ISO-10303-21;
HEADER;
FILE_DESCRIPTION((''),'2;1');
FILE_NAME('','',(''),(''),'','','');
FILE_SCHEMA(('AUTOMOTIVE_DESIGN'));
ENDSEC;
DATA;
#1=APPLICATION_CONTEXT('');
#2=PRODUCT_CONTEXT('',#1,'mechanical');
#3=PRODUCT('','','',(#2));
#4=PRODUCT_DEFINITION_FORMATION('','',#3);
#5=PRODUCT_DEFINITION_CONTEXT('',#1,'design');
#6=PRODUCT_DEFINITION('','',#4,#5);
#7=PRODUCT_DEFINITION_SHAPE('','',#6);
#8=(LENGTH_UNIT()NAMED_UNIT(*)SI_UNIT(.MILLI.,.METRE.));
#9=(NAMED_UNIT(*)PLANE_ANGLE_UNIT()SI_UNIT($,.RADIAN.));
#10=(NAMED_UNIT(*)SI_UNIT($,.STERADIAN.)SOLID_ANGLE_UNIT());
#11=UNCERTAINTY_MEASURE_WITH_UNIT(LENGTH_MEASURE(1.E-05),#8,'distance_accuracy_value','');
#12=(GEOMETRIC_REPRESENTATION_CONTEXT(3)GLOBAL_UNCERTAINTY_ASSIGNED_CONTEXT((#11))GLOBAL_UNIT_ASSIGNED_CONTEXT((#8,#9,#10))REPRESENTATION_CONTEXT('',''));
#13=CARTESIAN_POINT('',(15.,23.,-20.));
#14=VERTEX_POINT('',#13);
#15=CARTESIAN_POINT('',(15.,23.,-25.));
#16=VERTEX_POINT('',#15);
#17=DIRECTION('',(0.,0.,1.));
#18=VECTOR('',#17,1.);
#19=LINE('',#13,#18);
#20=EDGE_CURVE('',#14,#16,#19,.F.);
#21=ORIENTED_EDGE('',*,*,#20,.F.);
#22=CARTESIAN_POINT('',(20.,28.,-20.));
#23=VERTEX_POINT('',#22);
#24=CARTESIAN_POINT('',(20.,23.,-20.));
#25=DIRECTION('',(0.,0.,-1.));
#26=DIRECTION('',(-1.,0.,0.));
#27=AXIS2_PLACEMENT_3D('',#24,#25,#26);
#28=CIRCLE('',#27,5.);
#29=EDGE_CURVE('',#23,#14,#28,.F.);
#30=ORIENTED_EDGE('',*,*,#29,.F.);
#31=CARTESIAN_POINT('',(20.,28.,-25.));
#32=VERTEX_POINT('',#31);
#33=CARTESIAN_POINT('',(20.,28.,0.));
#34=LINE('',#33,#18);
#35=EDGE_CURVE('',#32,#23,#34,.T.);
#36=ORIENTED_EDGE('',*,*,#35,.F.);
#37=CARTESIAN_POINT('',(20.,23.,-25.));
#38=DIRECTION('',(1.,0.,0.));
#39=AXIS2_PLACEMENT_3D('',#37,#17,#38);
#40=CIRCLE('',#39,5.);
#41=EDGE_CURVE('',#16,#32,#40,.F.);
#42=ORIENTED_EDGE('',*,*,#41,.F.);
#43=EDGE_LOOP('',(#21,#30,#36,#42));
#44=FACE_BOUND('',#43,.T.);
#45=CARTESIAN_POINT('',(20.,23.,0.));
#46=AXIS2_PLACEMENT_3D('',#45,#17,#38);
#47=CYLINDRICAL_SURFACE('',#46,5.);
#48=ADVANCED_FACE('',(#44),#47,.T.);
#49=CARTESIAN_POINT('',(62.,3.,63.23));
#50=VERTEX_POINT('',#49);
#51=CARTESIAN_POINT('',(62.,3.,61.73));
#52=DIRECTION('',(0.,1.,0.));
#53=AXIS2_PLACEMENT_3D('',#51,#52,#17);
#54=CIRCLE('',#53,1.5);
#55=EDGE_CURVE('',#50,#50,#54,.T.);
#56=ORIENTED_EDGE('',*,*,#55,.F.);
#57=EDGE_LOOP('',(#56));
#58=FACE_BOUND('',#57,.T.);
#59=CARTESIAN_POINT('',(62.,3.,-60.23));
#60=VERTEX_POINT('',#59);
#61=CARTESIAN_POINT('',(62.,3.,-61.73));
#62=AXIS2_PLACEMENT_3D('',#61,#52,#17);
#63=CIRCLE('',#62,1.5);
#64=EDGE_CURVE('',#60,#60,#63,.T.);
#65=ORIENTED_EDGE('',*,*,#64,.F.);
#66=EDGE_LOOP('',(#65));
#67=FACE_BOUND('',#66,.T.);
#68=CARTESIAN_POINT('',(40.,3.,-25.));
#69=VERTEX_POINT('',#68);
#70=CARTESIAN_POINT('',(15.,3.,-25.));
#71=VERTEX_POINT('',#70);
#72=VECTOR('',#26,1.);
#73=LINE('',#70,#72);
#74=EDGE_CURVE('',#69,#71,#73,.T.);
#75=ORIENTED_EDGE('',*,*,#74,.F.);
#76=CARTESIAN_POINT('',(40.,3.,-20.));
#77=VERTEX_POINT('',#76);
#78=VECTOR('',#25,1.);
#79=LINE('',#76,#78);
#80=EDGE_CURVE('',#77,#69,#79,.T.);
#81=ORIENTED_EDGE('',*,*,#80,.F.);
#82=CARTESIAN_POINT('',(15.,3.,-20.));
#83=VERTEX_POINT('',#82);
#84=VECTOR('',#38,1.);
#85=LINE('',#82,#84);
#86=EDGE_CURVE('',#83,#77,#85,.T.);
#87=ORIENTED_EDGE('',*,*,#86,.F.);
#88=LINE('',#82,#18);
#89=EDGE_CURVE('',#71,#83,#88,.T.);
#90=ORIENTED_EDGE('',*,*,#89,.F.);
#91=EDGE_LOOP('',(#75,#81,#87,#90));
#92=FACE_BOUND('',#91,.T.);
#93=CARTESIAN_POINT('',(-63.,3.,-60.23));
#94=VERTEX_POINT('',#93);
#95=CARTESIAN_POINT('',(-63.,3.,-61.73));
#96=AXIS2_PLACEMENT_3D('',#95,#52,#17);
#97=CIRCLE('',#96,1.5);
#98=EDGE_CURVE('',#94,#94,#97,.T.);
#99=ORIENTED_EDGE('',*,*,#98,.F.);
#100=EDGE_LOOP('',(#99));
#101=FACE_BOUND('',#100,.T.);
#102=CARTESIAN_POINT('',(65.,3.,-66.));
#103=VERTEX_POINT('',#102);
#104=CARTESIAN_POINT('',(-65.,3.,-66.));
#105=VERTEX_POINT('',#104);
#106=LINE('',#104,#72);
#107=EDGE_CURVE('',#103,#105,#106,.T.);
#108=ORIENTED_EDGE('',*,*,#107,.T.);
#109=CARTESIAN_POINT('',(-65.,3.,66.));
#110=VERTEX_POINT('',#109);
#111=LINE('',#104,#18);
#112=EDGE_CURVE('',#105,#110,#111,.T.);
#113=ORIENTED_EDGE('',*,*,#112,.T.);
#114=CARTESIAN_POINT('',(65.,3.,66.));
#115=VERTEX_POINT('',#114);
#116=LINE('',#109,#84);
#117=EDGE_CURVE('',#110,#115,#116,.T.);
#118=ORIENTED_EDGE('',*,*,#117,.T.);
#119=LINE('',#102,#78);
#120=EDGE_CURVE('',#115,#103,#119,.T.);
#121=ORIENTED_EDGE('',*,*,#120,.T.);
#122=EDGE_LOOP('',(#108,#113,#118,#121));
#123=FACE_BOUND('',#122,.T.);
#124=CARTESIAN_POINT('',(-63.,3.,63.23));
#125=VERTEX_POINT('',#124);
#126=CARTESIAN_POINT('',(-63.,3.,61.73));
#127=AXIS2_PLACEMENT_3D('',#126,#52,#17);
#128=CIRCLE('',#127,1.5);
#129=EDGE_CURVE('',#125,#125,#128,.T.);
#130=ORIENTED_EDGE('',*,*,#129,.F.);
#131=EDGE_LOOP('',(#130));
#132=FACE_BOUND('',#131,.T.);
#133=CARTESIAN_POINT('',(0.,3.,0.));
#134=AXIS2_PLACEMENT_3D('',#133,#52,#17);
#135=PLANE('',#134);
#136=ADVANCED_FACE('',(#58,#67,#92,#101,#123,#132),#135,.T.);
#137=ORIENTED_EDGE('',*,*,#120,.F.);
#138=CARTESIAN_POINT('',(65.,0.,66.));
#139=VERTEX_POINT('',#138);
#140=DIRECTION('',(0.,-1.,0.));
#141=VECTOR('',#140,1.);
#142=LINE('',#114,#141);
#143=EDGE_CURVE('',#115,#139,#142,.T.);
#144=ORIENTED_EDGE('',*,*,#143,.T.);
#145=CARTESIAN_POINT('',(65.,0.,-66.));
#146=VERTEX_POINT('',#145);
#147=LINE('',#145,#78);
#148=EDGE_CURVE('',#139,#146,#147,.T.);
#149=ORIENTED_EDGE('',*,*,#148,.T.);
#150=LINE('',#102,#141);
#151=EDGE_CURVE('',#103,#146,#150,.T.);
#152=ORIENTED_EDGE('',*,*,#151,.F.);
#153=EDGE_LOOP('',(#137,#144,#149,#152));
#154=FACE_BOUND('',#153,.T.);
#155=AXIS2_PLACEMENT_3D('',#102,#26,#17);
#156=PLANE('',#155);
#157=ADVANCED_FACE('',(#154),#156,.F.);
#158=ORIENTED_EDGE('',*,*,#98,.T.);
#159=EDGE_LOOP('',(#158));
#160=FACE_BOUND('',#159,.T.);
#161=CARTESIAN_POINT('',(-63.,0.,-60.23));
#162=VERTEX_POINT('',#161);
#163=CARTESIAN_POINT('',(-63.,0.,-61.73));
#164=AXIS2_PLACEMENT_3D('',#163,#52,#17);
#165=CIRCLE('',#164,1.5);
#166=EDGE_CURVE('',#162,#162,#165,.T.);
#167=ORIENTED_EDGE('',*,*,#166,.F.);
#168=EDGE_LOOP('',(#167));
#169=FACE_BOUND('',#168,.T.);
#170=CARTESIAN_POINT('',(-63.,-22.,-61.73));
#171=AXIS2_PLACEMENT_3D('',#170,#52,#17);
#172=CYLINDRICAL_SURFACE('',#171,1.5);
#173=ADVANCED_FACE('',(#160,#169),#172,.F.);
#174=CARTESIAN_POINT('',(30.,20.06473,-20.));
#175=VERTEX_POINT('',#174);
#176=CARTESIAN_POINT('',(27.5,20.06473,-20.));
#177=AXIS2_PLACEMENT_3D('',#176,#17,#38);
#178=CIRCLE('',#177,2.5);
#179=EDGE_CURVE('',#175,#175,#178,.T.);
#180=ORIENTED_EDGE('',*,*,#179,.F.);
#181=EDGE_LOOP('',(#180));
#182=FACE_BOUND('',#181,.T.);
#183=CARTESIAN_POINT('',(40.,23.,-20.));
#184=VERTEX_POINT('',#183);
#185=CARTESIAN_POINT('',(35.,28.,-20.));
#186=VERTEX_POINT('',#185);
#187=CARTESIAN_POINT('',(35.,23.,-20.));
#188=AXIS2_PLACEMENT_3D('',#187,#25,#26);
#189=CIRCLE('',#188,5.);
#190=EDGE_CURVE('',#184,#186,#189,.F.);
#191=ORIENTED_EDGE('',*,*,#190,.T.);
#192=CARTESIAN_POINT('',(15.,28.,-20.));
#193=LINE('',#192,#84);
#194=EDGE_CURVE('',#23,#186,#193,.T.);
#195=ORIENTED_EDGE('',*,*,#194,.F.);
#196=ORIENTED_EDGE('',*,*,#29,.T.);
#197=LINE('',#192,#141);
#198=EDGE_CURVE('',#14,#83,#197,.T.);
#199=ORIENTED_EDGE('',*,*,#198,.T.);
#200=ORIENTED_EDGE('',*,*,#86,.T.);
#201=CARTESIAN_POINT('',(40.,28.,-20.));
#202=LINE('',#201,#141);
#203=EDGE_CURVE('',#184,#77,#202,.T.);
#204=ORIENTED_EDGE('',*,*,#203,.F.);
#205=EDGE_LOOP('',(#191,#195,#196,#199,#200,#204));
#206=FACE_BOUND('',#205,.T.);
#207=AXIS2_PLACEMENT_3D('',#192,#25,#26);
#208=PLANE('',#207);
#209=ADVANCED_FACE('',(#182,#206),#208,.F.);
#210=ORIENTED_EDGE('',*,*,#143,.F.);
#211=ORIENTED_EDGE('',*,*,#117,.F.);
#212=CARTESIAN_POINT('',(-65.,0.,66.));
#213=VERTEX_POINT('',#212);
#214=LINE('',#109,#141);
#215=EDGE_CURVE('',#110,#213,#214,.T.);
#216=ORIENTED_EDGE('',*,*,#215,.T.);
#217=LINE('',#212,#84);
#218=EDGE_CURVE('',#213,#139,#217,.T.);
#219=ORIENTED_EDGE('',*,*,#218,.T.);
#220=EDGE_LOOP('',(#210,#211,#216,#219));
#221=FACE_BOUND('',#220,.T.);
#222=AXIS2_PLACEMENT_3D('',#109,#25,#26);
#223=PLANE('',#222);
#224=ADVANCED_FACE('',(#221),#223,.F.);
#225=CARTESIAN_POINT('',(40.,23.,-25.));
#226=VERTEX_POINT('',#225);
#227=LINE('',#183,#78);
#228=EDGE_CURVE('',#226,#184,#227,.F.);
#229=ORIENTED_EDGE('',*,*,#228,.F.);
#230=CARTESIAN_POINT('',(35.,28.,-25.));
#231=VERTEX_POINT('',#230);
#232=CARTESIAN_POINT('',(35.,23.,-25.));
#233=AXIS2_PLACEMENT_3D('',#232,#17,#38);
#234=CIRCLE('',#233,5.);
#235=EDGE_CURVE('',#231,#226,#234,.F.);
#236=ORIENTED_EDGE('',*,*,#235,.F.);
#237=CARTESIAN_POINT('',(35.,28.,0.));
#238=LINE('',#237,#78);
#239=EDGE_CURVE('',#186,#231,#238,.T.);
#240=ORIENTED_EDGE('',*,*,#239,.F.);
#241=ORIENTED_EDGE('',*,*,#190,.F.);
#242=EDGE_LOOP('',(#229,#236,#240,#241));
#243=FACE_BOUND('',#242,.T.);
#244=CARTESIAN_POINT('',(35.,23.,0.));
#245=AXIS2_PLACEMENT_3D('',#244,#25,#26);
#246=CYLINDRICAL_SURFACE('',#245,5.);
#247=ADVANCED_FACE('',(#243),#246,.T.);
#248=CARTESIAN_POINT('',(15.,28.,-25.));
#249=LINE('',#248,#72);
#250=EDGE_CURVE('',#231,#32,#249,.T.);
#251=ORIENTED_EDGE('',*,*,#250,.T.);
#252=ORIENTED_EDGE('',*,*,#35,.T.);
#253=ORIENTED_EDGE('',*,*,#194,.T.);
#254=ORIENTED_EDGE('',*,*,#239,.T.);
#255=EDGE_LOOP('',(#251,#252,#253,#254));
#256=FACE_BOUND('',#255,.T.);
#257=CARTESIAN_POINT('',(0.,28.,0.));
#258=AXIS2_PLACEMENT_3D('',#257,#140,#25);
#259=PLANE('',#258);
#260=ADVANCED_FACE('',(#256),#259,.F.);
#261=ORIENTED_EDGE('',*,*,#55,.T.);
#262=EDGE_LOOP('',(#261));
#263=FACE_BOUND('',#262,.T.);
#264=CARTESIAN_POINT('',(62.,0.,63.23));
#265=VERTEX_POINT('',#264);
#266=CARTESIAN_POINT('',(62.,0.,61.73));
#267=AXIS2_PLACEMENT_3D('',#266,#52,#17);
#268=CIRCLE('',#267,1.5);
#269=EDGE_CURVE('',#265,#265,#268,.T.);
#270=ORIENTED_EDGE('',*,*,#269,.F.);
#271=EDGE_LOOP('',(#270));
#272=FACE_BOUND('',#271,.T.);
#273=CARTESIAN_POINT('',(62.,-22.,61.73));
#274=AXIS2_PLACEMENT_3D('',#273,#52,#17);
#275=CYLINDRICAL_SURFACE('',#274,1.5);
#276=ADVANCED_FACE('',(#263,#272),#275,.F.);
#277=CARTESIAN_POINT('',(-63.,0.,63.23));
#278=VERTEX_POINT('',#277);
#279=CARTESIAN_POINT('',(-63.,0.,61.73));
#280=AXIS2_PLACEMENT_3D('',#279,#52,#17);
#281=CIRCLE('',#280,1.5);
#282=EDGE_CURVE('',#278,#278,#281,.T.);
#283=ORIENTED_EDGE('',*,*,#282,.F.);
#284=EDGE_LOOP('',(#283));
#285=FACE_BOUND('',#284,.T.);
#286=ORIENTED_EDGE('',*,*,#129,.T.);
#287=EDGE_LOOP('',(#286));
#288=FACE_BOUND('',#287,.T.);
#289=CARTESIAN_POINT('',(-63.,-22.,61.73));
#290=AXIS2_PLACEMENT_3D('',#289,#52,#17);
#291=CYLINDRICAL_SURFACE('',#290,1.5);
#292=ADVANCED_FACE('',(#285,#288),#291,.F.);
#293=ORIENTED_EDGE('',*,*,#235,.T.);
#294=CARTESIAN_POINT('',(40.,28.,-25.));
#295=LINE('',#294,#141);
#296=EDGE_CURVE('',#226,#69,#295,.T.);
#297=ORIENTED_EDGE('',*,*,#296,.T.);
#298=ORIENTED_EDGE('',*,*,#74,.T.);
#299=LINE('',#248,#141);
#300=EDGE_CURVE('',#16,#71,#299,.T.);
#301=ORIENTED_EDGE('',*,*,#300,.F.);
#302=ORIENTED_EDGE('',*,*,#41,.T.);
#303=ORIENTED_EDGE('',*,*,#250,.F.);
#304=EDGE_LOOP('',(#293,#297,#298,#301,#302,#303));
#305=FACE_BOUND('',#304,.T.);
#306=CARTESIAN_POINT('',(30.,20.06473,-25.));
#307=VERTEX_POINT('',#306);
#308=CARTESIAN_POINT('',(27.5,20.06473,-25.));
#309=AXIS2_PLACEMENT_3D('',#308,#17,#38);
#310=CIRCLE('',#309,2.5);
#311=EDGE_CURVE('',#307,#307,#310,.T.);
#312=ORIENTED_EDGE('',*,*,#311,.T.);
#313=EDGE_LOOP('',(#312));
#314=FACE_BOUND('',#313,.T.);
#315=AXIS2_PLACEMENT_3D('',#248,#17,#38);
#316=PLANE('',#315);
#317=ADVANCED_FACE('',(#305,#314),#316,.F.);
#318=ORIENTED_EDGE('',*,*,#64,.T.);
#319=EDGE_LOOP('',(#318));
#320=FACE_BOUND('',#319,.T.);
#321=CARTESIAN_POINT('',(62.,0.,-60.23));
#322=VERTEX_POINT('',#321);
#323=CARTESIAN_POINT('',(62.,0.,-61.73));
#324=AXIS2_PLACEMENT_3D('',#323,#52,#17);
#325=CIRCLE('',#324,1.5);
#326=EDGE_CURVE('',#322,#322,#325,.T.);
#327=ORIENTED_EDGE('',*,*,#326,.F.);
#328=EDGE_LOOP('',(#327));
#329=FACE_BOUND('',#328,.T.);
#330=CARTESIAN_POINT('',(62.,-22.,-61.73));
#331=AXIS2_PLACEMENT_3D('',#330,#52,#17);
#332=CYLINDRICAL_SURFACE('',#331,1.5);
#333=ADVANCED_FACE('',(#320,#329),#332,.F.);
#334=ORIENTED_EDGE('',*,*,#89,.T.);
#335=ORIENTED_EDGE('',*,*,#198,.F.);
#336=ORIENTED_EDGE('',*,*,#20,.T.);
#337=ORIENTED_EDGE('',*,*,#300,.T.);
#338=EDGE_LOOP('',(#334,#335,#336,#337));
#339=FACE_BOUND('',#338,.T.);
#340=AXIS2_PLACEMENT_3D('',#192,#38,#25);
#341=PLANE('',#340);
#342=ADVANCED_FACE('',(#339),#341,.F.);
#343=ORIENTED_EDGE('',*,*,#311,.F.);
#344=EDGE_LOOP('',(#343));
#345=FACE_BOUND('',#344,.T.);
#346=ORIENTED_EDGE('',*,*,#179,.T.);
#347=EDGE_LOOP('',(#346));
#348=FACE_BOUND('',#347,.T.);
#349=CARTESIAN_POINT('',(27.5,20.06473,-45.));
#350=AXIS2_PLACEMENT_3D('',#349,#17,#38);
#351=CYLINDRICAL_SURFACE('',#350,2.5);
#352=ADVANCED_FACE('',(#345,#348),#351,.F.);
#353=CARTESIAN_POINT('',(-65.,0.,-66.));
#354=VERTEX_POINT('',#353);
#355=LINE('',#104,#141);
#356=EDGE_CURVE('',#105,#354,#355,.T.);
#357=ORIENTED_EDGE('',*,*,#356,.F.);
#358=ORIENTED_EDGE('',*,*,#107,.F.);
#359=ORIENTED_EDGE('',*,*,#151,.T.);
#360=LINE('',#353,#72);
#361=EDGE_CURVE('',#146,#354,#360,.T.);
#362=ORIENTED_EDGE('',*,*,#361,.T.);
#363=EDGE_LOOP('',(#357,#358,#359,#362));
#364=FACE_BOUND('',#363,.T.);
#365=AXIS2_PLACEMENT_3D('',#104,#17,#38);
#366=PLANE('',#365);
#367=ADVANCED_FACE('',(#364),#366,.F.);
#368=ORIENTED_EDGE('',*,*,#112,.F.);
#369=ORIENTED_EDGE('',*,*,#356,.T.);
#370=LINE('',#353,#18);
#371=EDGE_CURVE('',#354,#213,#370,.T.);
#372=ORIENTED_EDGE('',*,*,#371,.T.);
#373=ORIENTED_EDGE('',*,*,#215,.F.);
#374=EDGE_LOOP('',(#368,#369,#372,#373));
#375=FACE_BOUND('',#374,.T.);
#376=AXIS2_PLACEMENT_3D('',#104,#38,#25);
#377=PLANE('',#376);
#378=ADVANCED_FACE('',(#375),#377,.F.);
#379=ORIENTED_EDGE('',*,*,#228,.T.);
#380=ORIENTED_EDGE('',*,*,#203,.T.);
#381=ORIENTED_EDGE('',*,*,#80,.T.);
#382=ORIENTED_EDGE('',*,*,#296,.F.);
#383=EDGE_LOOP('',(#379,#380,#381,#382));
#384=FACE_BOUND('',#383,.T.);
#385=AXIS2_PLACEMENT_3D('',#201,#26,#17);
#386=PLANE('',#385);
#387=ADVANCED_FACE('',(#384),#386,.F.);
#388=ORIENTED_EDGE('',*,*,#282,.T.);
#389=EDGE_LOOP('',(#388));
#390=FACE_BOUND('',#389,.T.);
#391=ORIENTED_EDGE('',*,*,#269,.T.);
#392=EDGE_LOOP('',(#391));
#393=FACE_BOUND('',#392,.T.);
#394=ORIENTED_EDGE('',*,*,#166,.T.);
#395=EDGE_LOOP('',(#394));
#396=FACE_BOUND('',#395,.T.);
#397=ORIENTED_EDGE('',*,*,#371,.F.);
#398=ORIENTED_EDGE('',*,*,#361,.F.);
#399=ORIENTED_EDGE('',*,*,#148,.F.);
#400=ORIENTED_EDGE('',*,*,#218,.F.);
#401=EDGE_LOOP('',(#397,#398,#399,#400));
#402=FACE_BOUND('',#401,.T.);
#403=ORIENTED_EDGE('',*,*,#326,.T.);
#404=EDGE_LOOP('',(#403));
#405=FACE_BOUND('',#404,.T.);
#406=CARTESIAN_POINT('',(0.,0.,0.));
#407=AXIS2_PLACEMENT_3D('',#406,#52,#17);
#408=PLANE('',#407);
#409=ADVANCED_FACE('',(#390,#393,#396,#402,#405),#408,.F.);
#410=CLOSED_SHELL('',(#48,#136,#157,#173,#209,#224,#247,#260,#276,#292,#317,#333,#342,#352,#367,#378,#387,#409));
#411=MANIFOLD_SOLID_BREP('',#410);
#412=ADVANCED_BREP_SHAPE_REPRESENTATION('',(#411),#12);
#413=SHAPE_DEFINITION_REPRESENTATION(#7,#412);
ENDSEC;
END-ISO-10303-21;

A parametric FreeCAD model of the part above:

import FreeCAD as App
import Part
import Sketcher
from FreeCAD import Vector
Q = App.Units.Quantity


def edges_at(feature, points):
    """Names of the edges that pass closest to the given points."""
    edges = feature.Shape.Edges
    near = lambda p: min(range(len(edges)), key=lambda i: edges[i].distToShape(Part.Vertex(*p))[0])
    return sorted({f"Edge{near(p) + 1}" for p in points})

doc = App.newDocument("Part")
body = doc.addObject("PartDesign::Body", "Body")

sketch1 = body.newObject("Sketcher::SketchObject", "Sketch")
sketch1.AttachmentSupport = (doc.getObject("XZ_Plane"), [""])
sketch1.MapMode = "FlatFace"
sketch1.addGeometry([
    Part.LineSegment(Vector(-65, -66, 0), Vector(-65, 66, 0)),
    Part.LineSegment(Vector(-65, 66, 0), Vector(65, 66, 0)),
    Part.LineSegment(Vector(65, 66, 0), Vector(65, -66, 0)),
    Part.LineSegment(Vector(65, -66, 0), Vector(-65, -66, 0)),
], False)
sketch1.addConstraint([
    Sketcher.Constraint("Coincident", 0, 2, 1, 1),
    Sketcher.Constraint("Coincident", 1, 2, 2, 1),
    Sketcher.Constraint("Coincident", 2, 2, 3, 1),
    Sketcher.Constraint("Coincident", 3, 2, 0, 1),
    Sketcher.Constraint("Vertical", 0),
    Sketcher.Constraint("Horizontal", 1),
    Sketcher.Constraint("Vertical", 2),
    Sketcher.Constraint("Horizontal", 3),
    Sketcher.Constraint("Symmetric", 0, 2, 2, 2, -1, 1),
    Sketcher.Constraint("DistanceX", 1, 1, 1, 2, Q("130 mm")),
    Sketcher.Constraint("DistanceY", 0, 1, 0, 2, Q("132 mm")),
])
pad1 = body.newObject("PartDesign::Pad", "Pad")
pad1.Profile = sketch1
pad1.Length = 3
pad1.Reversed = True

sketch2 = body.newObject("Sketcher::SketchObject", "Sketch001")
sketch2.AttachmentSupport = (doc.getObject("XZ_Plane"), [""])
sketch2.MapMode = "FlatFace"
sketch2.AttachmentOffset = App.Placement(Vector(0, 0, -3), App.Rotation())
sketch2.addGeometry([
    Part.LineSegment(Vector(15, -25, 0), Vector(15, -20, 0)),
    Part.LineSegment(Vector(15, -20, 0), Vector(40, -20, 0)),
    Part.LineSegment(Vector(40, -20, 0), Vector(40, -25, 0)),
    Part.LineSegment(Vector(40, -25, 0), Vector(15, -25, 0)),
], False)
sketch2.addConstraint([
    Sketcher.Constraint("Coincident", 0, 2, 1, 1),
    Sketcher.Constraint("Coincident", 1, 2, 2, 1),
    Sketcher.Constraint("Coincident", 2, 2, 3, 1),
    Sketcher.Constraint("Coincident", 3, 2, 0, 1),
    Sketcher.Constraint("Vertical", 0),
    Sketcher.Constraint("Horizontal", 1),
    Sketcher.Constraint("Vertical", 2),
    Sketcher.Constraint("Horizontal", 3),
    Sketcher.Constraint("DistanceX", 1, 1, 1, 2, Q("25 mm")),
    Sketcher.Constraint("DistanceY", 0, 1, 0, 2, Q("5 mm")),
    Sketcher.Constraint("DistanceX", -1, 1, 0, 2, Q("15 mm")),
    Sketcher.Constraint("DistanceY", 0, 2, -1, 1, Q("20 mm")),
])
pad2 = body.newObject("PartDesign::Pad", "Pad001")
pad2.Profile = sketch2
pad2.Length = 25
pad2.Reversed = True
doc.recompute()

fillet = body.newObject("PartDesign::Fillet", "Fillet")
fillet.Base = (pad2, edges_at(pad2, [(15, 28, -22.5), (40, 28, -22.5)]))
fillet.Radius = 5

sketch3 = body.newObject("Sketcher::SketchObject", "Sketch002")
sketch3.AttachmentSupport = (doc.getObject("XY_Plane"), [""])
sketch3.MapMode = "FlatFace"
sketch3.AttachmentOffset = App.Placement(Vector(0, 0, -20), App.Rotation())
sketch3.addGeometry(Part.Circle(Vector(27.5, 20.06473, 0), Vector(0, 0, 1), 2.5), False)
sketch3.addConstraint([
    Sketcher.Constraint("Diameter", 0, Q("5 mm")),
    Sketcher.Constraint("DistanceX", -1, 1, 0, 3, Q("27.5 mm")),
    Sketcher.Constraint("DistanceY", -1, 1, 0, 3, Q("20.06473 mm")),
])
pocket1 = body.newObject("PartDesign::Pocket", "Pocket")
pocket1.Profile = sketch3
pocket1.Length = 25

sketch4 = body.newObject("Sketcher::SketchObject", "Sketch003")
sketch4.AttachmentSupport = (doc.getObject("XZ_Plane"), [""])
sketch4.MapMode = "FlatFace"
sketch4.AttachmentOffset = App.Placement(Vector(0, 0, -3), App.Rotation())
sketch4.addGeometry([
    Part.Circle(Vector(-63, -61.73, 0), Vector(0, 0, 1), 1.5),
    Part.Circle(Vector(62, -61.73, 0), Vector(0, 0, 1), 1.5),
    Part.Circle(Vector(-63, 61.73, 0), Vector(0, 0, 1), 1.5),
    Part.Circle(Vector(62, 61.73, 0), Vector(0, 0, 1), 1.5),
], False)
sketch4.addConstraint([
    Sketcher.Constraint("Equal", 0, 1),
    Sketcher.Constraint("Equal", 1, 2),
    Sketcher.Constraint("Equal", 2, 3),
    Sketcher.Constraint("Symmetric", 0, 3, 2, 3, -1),
    Sketcher.Constraint("Symmetric", 1, 3, 3, 3, -1),
    Sketcher.Constraint("Horizontal", 0, 3, 1, 3),
    Sketcher.Constraint("Diameter", 0, Q("3 mm")),
    Sketcher.Constraint("DistanceX", 0, 3, -1, 1, Q("63 mm")),
    Sketcher.Constraint("DistanceX", -1, 1, 1, 3, Q("62 mm")),
    Sketcher.Constraint("DistanceY", 0, 3, -1, 1, Q("61.73 mm")),
])
pocket2 = body.newObject("PartDesign::Pocket", "Pocket001")
pocket2.Profile = sketch4
pocket2.Length = 25
pocket2.Reversed = True

doc.recompute()
